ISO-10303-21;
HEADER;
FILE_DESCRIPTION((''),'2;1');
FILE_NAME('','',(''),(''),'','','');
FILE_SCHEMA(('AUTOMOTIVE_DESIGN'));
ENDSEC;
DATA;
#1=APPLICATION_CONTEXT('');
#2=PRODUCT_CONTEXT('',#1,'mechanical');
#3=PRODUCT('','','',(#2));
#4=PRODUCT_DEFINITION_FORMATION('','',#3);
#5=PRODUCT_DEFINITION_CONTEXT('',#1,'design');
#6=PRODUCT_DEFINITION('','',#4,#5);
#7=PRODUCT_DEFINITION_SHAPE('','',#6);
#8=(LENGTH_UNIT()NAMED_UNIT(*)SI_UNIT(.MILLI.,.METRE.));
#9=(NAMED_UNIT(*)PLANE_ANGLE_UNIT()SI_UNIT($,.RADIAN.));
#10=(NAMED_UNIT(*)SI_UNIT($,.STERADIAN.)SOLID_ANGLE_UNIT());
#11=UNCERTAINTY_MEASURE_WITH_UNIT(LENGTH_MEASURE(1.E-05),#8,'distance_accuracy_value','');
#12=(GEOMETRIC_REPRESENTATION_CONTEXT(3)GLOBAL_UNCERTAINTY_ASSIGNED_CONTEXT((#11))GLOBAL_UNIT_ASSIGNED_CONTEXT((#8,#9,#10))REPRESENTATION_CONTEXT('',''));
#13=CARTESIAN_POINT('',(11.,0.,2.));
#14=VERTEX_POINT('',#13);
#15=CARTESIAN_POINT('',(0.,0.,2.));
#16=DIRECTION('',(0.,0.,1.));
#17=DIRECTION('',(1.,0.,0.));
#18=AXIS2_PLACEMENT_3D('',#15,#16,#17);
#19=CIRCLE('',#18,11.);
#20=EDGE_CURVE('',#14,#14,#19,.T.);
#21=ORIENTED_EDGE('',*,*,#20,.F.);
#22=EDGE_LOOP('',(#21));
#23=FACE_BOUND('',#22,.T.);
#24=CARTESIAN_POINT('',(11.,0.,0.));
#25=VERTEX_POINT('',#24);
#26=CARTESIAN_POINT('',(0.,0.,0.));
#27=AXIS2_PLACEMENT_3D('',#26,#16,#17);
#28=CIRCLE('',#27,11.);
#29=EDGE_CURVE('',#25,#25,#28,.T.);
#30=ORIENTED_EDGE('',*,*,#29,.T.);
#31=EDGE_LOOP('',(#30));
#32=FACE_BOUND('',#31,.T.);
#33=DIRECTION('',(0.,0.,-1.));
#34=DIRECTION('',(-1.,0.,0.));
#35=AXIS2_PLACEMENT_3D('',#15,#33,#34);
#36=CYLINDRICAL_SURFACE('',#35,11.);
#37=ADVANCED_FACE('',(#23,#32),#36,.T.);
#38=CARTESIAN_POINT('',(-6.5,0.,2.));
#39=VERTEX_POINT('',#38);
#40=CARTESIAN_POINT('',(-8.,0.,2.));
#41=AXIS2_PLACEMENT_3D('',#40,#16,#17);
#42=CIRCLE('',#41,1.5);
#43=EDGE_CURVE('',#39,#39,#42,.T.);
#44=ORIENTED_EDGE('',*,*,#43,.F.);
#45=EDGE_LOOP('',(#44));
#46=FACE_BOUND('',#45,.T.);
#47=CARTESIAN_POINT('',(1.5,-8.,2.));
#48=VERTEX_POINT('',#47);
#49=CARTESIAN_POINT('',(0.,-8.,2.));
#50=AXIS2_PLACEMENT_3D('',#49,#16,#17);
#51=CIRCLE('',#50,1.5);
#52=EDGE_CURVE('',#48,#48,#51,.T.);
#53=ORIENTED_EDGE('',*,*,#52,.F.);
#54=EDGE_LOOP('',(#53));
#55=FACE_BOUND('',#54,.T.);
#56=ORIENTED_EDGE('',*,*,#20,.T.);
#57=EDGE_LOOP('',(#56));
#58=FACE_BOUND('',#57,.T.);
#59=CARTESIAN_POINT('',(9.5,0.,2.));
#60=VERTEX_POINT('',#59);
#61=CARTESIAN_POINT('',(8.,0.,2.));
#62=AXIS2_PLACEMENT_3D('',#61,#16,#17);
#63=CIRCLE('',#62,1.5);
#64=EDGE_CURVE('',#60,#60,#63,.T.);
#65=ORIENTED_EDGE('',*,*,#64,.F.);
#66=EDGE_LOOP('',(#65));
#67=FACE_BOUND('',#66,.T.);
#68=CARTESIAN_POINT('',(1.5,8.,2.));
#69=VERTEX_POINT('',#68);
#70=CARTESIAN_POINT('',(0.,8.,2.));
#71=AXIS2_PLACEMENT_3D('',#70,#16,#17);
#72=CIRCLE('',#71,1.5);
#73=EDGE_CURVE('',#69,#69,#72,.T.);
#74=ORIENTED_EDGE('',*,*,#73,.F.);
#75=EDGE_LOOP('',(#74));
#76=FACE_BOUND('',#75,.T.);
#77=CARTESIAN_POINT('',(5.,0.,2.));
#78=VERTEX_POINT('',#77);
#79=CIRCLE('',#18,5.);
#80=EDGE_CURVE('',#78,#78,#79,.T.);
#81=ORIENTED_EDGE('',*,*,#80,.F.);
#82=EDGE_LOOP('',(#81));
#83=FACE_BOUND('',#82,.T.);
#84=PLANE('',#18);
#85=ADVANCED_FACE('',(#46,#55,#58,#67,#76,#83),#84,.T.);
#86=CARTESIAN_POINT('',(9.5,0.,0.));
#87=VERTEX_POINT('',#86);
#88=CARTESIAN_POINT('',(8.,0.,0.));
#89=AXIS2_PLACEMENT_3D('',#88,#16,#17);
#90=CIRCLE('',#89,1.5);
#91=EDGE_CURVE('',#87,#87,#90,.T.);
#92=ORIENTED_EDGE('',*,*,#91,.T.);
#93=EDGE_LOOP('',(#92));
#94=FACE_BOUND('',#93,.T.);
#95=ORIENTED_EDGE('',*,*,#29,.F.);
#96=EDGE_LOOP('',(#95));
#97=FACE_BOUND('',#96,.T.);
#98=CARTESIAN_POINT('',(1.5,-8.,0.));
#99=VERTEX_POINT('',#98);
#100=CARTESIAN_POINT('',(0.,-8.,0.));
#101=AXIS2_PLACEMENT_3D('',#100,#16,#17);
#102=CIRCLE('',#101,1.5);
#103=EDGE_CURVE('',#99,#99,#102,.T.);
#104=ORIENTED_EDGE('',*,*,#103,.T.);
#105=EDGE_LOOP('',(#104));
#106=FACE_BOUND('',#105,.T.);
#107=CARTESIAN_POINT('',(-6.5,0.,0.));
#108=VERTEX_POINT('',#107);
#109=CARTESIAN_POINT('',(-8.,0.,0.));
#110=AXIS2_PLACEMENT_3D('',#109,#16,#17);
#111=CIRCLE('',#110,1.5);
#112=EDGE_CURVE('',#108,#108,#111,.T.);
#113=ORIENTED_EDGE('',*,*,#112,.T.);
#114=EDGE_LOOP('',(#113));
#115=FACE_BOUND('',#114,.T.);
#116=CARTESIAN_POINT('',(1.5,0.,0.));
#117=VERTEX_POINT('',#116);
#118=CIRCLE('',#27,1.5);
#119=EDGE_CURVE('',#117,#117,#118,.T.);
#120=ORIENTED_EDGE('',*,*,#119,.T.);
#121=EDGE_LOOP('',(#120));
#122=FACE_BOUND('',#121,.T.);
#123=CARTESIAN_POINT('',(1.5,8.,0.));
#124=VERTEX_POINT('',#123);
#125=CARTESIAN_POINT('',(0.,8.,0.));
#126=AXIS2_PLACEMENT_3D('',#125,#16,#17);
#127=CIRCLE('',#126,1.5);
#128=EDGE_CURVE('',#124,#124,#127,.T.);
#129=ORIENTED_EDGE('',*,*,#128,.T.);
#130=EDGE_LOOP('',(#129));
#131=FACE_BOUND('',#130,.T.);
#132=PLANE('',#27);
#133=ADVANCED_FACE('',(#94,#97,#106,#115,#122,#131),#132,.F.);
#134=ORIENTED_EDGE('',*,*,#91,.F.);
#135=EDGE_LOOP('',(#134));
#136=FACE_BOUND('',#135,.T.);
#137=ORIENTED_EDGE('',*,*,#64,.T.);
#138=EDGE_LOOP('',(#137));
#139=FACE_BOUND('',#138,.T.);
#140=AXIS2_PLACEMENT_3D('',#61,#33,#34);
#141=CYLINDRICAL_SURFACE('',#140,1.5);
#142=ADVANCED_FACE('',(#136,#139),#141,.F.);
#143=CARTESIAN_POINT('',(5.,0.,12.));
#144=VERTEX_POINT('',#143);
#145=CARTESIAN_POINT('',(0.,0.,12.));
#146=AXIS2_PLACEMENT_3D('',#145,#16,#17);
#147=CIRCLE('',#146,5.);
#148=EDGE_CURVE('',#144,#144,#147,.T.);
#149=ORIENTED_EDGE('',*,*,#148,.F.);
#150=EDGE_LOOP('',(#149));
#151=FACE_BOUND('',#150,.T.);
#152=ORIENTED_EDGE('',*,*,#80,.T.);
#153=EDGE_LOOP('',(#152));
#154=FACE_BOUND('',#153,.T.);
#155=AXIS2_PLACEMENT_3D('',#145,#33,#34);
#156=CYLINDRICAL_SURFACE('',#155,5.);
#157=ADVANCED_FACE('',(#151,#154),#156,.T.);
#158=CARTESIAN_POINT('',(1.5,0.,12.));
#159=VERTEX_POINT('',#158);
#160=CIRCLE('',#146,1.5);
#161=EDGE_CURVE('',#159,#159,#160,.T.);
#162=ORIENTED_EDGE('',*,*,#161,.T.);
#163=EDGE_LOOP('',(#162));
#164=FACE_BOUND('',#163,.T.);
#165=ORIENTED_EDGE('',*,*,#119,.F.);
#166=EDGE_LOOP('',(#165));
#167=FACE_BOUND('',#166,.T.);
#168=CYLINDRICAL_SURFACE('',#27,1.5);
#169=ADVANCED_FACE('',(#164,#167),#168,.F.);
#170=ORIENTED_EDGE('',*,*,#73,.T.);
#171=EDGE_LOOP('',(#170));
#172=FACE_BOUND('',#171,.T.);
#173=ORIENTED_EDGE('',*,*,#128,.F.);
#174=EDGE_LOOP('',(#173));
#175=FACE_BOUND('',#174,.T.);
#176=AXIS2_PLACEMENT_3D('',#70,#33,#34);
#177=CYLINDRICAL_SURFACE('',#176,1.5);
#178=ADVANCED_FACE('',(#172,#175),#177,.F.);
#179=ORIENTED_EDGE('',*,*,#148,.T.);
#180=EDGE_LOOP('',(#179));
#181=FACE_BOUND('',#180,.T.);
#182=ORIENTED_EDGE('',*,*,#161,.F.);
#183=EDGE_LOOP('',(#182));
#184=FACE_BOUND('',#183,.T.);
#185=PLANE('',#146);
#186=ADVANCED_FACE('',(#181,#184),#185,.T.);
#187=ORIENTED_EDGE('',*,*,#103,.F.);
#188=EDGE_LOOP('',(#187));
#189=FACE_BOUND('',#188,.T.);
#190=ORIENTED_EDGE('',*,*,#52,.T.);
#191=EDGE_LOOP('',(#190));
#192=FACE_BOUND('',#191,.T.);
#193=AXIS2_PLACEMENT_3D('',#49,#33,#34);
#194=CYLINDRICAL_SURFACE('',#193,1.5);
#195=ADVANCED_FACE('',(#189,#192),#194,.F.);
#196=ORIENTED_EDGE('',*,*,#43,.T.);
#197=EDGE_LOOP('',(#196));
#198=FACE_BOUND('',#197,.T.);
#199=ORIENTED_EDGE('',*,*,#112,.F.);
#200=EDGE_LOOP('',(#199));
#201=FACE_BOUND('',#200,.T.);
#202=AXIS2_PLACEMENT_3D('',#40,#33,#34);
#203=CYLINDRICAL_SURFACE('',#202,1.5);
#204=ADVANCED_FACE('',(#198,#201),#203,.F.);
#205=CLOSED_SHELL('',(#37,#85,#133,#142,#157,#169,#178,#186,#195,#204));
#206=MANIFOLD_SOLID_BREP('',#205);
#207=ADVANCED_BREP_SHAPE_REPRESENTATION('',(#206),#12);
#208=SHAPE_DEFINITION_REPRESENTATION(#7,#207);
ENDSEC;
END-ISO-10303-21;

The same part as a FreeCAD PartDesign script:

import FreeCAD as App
import Part
import Sketcher

V = App.Vector
Q = App.Units.Quantity

doc = App.newDocument("Part")
body = doc.addObject("PartDesign::Body", "Body")

# Sketch on XY plane
sketch1 = body.newObject("Sketcher::SketchObject", "Sketch")
sketch1.AttachmentSupport = (doc.getObject("XY_Plane"), [""])
sketch1.MapMode = "FlatFace"
sketch1.addGeometry(Part.Circle(V(0, 0, 0), V(0, 0, 1), 11), False)
sketch1.addGeometry(Part.Circle(V(0, -8, 0), V(0, 0, 1), 1.5), False)
sketch1.addGeometry(Part.Circle(V(-8, 0, 0), V(0, 0, 1), 1.5), False)
sketch1.addGeometry(Part.Circle(V(8, 0, 0), V(0, 0, 1), 1.5), False)
sketch1.addGeometry(Part.Circle(V(0, 8, 0), V(0, 0, 1), 1.5), False)
sketch1.addConstraint(Sketcher.Constraint("Coincident", 0, 3, -1, 1))
sketch1.addConstraint(Sketcher.Constraint("Equal", 1, 2))
sketch1.addConstraint(Sketcher.Constraint("Equal", 2, 3))
sketch1.addConstraint(Sketcher.Constraint("Equal", 3, 4))
sketch1.addConstraint(Sketcher.Constraint("Symmetric", 2, 3, 3, 3, -1, 1))
sketch1.addConstraint(Sketcher.Constraint("Symmetric", 1, 3, 4, 3, -1, 1))
sketch1.addConstraint(Sketcher.Constraint("PointOnObject", 1, 3, -2))
sketch1.addConstraint(Sketcher.Constraint("PointOnObject", 2, 3, -1))
sketch1.addConstraint(Sketcher.Constraint("Diameter", 0, Q("22 mm")))
sketch1.addConstraint(Sketcher.Constraint("Diameter", 1, Q("3 mm")))
sketch1.addConstraint(Sketcher.Constraint("DistanceY", 1, 3, -1, 1, Q("8 mm")))
sketch1.addConstraint(Sketcher.Constraint("DistanceX", 2, 3, -1, 1, Q("8 mm")))
pad1 = body.newObject("PartDesign::Pad", "Pad")
pad1.Profile = sketch1
pad1.Length = 2

# Sketch on XY plane
sketch2 = body.newObject("Sketcher::SketchObject", "Sketch001")
sketch2.AttachmentSupport = (doc.getObject("XY_Plane"), [""])
sketch2.MapMode = "FlatFace"
sketch2.AttachmentOffset = App.Placement(V(0, 0, 2), App.Rotation())
sketch2.addGeometry(Part.Circle(V(0, 0, 0), V(0, 0, 1), 5), False)
sketch2.addConstraint(Sketcher.Constraint("Coincident", 0, 3, -1, 1))
sketch2.addConstraint(Sketcher.Constraint("Diameter", 0, Q("10 mm")))
pad2 = body.newObject("PartDesign::Pad", "Pad001")
pad2.Profile = sketch2
pad2.Length = 10

# Sketch on XY plane
sketch3 = body.newObject("Sketcher::SketchObject", "Sketch002")
sketch3.AttachmentSupport = (doc.getObject("XY_Plane"), [""])
sketch3.MapMode = "FlatFace"
sketch3.AttachmentOffset = App.Placement(V(0, 0, 12), App.Rotation())
sketch3.addGeometry(Part.Circle(V(0, 0, 0), V(0, 0, 1), 1.5), False)
sketch3.addConstraint(Sketcher.Constraint("Coincident", 0, 3, -1, 1))
sketch3.addConstraint(Sketcher.Constraint("Diameter", 0, Q("3 mm")))
pocket1 = body.newObject("PartDesign::Pocket", "Pocket")
pocket1.Profile = sketch3
pocket1.Type = "ThroughAll"

doc.recompute()
